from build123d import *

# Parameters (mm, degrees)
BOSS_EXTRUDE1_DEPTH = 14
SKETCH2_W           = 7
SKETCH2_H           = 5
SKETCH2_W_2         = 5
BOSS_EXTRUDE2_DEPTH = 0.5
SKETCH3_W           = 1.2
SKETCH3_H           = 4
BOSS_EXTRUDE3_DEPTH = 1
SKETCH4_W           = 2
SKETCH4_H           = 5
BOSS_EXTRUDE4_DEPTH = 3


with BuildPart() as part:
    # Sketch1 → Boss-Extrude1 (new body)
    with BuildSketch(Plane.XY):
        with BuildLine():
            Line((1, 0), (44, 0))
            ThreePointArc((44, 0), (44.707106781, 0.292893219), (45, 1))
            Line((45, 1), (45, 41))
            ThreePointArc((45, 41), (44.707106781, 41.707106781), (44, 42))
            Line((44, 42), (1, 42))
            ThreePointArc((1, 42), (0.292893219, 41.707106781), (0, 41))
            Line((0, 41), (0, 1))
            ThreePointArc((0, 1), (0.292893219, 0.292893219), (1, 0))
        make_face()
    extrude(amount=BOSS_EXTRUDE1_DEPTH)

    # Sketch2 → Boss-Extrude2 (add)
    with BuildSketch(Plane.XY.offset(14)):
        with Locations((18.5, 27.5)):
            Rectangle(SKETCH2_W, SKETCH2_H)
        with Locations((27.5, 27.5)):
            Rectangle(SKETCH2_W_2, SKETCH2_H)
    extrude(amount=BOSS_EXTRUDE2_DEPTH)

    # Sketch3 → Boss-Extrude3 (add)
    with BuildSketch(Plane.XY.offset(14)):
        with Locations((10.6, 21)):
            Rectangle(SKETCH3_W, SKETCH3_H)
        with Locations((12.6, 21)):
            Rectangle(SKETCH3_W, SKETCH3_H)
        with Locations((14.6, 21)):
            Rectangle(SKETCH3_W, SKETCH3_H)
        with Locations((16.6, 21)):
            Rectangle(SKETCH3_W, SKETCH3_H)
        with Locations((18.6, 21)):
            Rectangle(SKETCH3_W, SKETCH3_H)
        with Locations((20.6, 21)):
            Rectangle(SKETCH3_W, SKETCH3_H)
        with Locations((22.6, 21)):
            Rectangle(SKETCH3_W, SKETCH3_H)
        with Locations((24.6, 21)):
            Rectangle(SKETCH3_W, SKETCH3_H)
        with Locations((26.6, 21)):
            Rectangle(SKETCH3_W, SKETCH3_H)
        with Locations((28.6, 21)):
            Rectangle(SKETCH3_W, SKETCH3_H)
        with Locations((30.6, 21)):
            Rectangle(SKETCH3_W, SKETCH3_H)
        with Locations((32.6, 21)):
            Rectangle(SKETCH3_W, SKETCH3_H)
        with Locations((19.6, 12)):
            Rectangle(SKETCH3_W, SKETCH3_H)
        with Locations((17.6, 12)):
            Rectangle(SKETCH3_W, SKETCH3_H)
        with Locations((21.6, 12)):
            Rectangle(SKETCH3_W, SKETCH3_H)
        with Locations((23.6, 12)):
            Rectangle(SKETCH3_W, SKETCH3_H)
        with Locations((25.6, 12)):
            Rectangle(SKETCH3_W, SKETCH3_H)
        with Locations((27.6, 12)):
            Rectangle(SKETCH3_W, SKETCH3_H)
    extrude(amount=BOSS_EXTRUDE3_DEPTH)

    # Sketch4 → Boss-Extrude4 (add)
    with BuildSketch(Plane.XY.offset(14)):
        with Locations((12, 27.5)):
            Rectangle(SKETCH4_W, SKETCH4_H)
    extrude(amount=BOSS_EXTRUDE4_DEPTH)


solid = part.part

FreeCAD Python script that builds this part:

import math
import FreeCAD as App
import Part
import Sketcher
Q = App.Units.Quantity

doc = App.newDocument("Part")
params = doc.addObject("Spreadsheet::Sheet", "Params")
for row, (alias, value) in enumerate([
    ("sketch1_radius", "1 mm"),
    ("sketch1_width", "43 mm"),
    ("sketch1_height", "40 mm"),
    ("pad1_length", "14 mm"),
    ("sketch2_width", "7 mm"),
    ("sketch2_width2", "5 mm"),
    ("pad2_length", "0.5 mm"),
    ("sketch3_height", "4 mm"),
    ("sketch3_width", "1.2 mm"),
    ("pad3_length", "1 mm"),
    ("sketch4_width", "2 mm"),
    ("sketch4_height", "5 mm"),
    ("pad4_length", "3 mm"),
], start=1):
    params.set(f"A{row}", alias)
    params.set(f"B{row}", "=" + value)
    params.setAlias(f"B{row}", alias)

body = doc.addObject("PartDesign::Body", "Body")

sketch1 = body.newObject("Sketcher::SketchObject", "Sketch")
sketch1.AttachmentSupport = (doc.getObject("XY_Plane"), [""])
sketch1.MapMode = "FlatFace"
sketch1.addGeometry(Part.LineSegment(App.Vector(1, 0, 0), App.Vector(44, 0, 0)), False)
sketch1.addGeometry(Part.ArcOfCircle(Part.Circle(App.Vector(44, 1, 0), App.Vector(0, 0, 1), 1), math.radians(-90), math.radians(0)), False)
sketch1.addGeometry(Part.LineSegment(App.Vector(45, 1, 0), App.Vector(45, 41, 0)), False)
sketch1.addGeometry(Part.ArcOfCircle(Part.Circle(App.Vector(44, 41, 0), App.Vector(0, 0, 1), 1), math.radians(0), math.radians(90)), False)
sketch1.addGeometry(Part.LineSegment(App.Vector(44, 42, 0), App.Vector(1, 42, 0)), False)
sketch1.addGeometry(Part.ArcOfCircle(Part.Circle(App.Vector(1, 41, 0), App.Vector(0, 0, 1), 1), math.radians(90), math.radians(180)), False)
sketch1.addGeometry(Part.LineSegment(App.Vector(0, 41, 0), App.Vector(0, 1, 0)), False)
sketch1.addGeometry(Part.ArcOfCircle(Part.Circle(App.Vector(1, 1, 0), App.Vector(0, 0, 1), 1), math.radians(-180), math.radians(-90)), False)
sketch1.addConstraint(Sketcher.Constraint("Tangent", 0, 2, 1, 1))
sketch1.addConstraint(Sketcher.Constraint("Tangent", 1, 2, 2, 1))
sketch1.addConstraint(Sketcher.Constraint("Tangent", 2, 2, 3, 1))
sketch1.addConstraint(Sketcher.Constraint("Tangent", 3, 2, 4, 1))
sketch1.addConstraint(Sketcher.Constraint("Tangent", 4, 2, 5, 1))
sketch1.addConstraint(Sketcher.Constraint("Tangent", 5, 2, 6, 1))
sketch1.addConstraint(Sketcher.Constraint("Tangent", 6, 2, 7, 1))
sketch1.addConstraint(Sketcher.Constraint("Tangent", 7, 2, 0, 1))
sketch1.addConstraint(Sketcher.Constraint("Horizontal", 0))
sketch1.addConstraint(Sketcher.Constraint("Vertical", 2))
sketch1.addConstraint(Sketcher.Constraint("Horizontal", 4))
sketch1.addConstraint(Sketcher.Constraint("Vertical", 6))
sketch1.addConstraint(Sketcher.Constraint("Equal", 1, 3))
sketch1.addConstraint(Sketcher.Constraint("Equal", 3, 5))
sketch1.addConstraint(Sketcher.Constraint("Equal", 5, 7))
sketch1.addConstraint(Sketcher.Constraint("PointOnObject", 0, 2, -1))
sketch1.addConstraint(Sketcher.Constraint("PointOnObject", 5, 2, -2))
sketch1.addConstraint(Sketcher.Constraint("Radius", 1, Q("1 mm")))
sketch1.addConstraint(Sketcher.Constraint("DistanceX", 0, 1, 0, 2, Q("43 mm")))
sketch1.addConstraint(Sketcher.Constraint("DistanceY", 2, 1, 2, 2, Q("40 mm")))
sketch1.setExpression("Constraints[17]", "Params.sketch1_radius")
sketch1.setExpression("Constraints[18]", "Params.sketch1_width")
sketch1.setExpression("Constraints[19]", "Params.sketch1_height")
pad1 = body.newObject("PartDesign::Pad", "Pad")
pad1.Profile = sketch1
pad1.setExpression("Length", "Params.pad1_length")

sketch2 = body.newObject("Sketcher::SketchObject", "Sketch001")
sketch2.AttachmentSupport = (doc.getObject("XY_Plane"), [""])
sketch2.MapMode = "FlatFace"
sketch2.AttachmentOffset = App.Placement(App.Vector(0, 0, 14), App.Rotation())
sketch2.addGeometry(Part.LineSegment(App.Vector(15, 30, 0), App.Vector(15, 25, 0)), False)
sketch2.addGeometry(Part.LineSegment(App.Vector(15, 25, 0), App.Vector(22, 25, 0)), False)
sketch2.addGeometry(Part.LineSegment(App.Vector(22, 25, 0), App.Vector(22, 30, 0)), False)
sketch2.addGeometry(Part.LineSegment(App.Vector(22, 30, 0), App.Vector(15, 30, 0)), False)
sketch2.addGeometry(Part.LineSegment(App.Vector(25, 30, 0), App.Vector(25, 25, 0)), False)
sketch2.addGeometry(Part.LineSegment(App.Vector(25, 25, 0), App.Vector(30, 25, 0)), False)
sketch2.addGeometry(Part.LineSegment(App.Vector(30, 25, 0), App.Vector(30, 30, 0)), False)
sketch2.addGeometry(Part.LineSegment(App.Vector(30, 30, 0), App.Vector(25, 30, 0)), False)
sketch2.addConstraint(Sketcher.Constraint("Coincident", 0, 2, 1, 1))
sketch2.addConstraint(Sketcher.Constraint("Coincident", 1, 2, 2, 1))
sketch2.addConstraint(Sketcher.Constraint("Coincident", 2, 2, 3, 1))
sketch2.addConstraint(Sketcher.Constraint("Coincident", 3, 2, 0, 1))
sketch2.addConstraint(Sketcher.Constraint("Coincident", 4, 2, 5, 1))
sketch2.addConstraint(Sketcher.Constraint("Coincident", 5, 2, 6, 1))
sketch2.addConstraint(Sketcher.Constraint("Coincident", 6, 2, 7, 1))
sketch2.addConstraint(Sketcher.Constraint("Coincident", 7, 2, 4, 1))
sketch2.addConstraint(Sketcher.Constraint("Vertical", 0))
sketch2.addConstraint(Sketcher.Constraint("Horizontal", 1))
sketch2.addConstraint(Sketcher.Constraint("Vertical", 2))
sketch2.addConstraint(Sketcher.Constraint("Horizontal", 3))
sketch2.addConstraint(Sketcher.Constraint("Vertical", 4))
sketch2.addConstraint(Sketcher.Constraint("Horizontal", 5))
sketch2.addConstraint(Sketcher.Constraint("Vertical", 6))
sketch2.addConstraint(Sketcher.Constraint("Horizontal", 7))
sketch2.addConstraint(Sketcher.Constraint("Horizontal", 1, 2, 4, 2))
sketch2.addConstraint(Sketcher.Constraint("Horizontal", 3, 2, 6, 2))
sketch2.addConstraint(Sketcher.Constraint("Equal", 7, 0))
sketch2.addConstraint(Sketcher.Constraint("DistanceX", 1, 1, 1, 2, Q("7 mm")))
sketch2.addConstraint(Sketcher.Constraint("DistanceX", 5, 1, 5, 2, Q("5 mm")))
sketch2.addConstraint(Sketcher.Constraint("DistanceX", -1, 1, 0, 2, Q("15 mm")))
sketch2.addConstraint(Sketcher.Constraint("DistanceY", -1, 1, 0, 2, Q("25 mm")))
sketch2.addConstraint(Sketcher.Constraint("DistanceX", -1, 1, 4, 2, Q("25 mm")))
sketch2.setExpression("Constraints[19]", "Params.sketch2_width")
sketch2.setExpression("Constraints[20]", "Params.sketch2_width2")
pad2 = body.newObject("PartDesign::Pad", "Pad001")
pad2.Profile = sketch2
pad2.setExpression("Length", "Params.pad2_length")

sketch3 = body.newObject("Sketcher::SketchObject", "Sketch002")
sketch3.AttachmentSupport = (doc.getObject("XY_Plane"), [""])
sketch3.MapMode = "FlatFace"
sketch3.AttachmentOffset = App.Placement(App.Vector(0, 0, 14), App.Rotation())
sketch3.addGeometry(Part.LineSegment(App.Vector(10, 23, 0), App.Vector(10, 19, 0)), False)
sketch3.addGeometry(Part.LineSegment(App.Vector(10, 19, 0), App.Vector(11.2, 19, 0)), False)
sketch3.addGeometry(Part.LineSegment(App.Vector(11.2, 19, 0), App.Vector(11.2, 23, 0)), False)
sketch3.addGeometry(Part.LineSegment(App.Vector(11.2, 23, 0), App.Vector(10, 23, 0)), False)
sketch3.addGeometry(Part.LineSegment(App.Vector(12, 23, 0), App.Vector(12, 19, 0)), False)
sketch3.addGeometry(Part.LineSegment(App.Vector(12, 19, 0), App.Vector(13.2, 19, 0)), False)
sketch3.addGeometry(Part.LineSegment(App.Vector(13.2, 19, 0), App.Vector(13.2, 23, 0)), False)
sketch3.addGeometry(Part.LineSegment(App.Vector(13.2, 23, 0), App.Vector(12, 23, 0)), False)
sketch3.addGeometry(Part.LineSegment(App.Vector(14, 23, 0), App.Vector(14, 19, 0)), False)
sketch3.addGeometry(Part.LineSegment(App.Vector(14, 19, 0), App.Vector(15.2, 19, 0)), False)
sketch3.addGeometry(Part.LineSegment(App.Vector(15.2, 19, 0), App.Vector(15.2, 23, 0)), False)
sketch3.addGeometry(Part.LineSegment(App.Vector(15.2, 23, 0), App.Vector(14, 23, 0)), False)
sketch3.addGeometry(Part.LineSegment(App.Vector(16, 23, 0), App.Vector(16, 19, 0)), False)
sketch3.addGeometry(Part.LineSegment(App.Vector(16, 19, 0), App.Vector(17.2, 19, 0)), False)
sketch3.addGeometry(Part.LineSegment(App.Vector(17.2, 19, 0), App.Vector(17.2, 23, 0)), False)
sketch3.addGeometry(Part.LineSegment(App.Vector(17.2, 23, 0), App.Vector(16, 23, 0)), False)
sketch3.addGeometry(Part.LineSegment(App.Vector(18, 23, 0), App.Vector(18, 19, 0)), False)
sketch3.addGeometry(Part.LineSegment(App.Vector(18, 19, 0), App.Vector(19.2, 19, 0)), False)
sketch3.addGeometry(Part.LineSegment(App.Vector(19.2, 19, 0), App.Vector(19.2, 23, 0)), False)
sketch3.addGeometry(Part.LineSegment(App.Vector(19.2, 23, 0), App.Vector(18, 23, 0)), False)
sketch3.addGeometry(Part.LineSegment(App.Vector(20, 23, 0), App.Vector(20, 19, 0)), False)
sketch3.addGeometry(Part.LineSegment(App.Vector(20, 19, 0), App.Vector(21.2, 19, 0)), False)
sketch3.addGeometry(Part.LineSegment(App.Vector(21.2, 19, 0), App.Vector(21.2, 23, 0)), False)
sketch3.addGeometry(Part.LineSegment(App.Vector(21.2, 23, 0), App.Vector(20, 23, 0)), False)
sketch3.addGeometry(Part.LineSegment(App.Vector(22, 23, 0), App.Vector(22, 19, 0)), False)
sketch3.addGeometry(Part.LineSegment(App.Vector(22, 19, 0), App.Vector(23.2, 19, 0)), False)
sketch3.addGeometry(Part.LineSegment(App.Vector(23.2, 19, 0), App.Vector(23.2, 23, 0)), False)
sketch3.addGeometry(Part.LineSegment(App.Vector(23.2, 23, 0), App.Vector(22, 23, 0)), False)
sketch3.addGeometry(Part.LineSegment(App.Vector(24, 23, 0), App.Vector(24, 19, 0)), False)
sketch3.addGeometry(Part.LineSegment(App.Vector(24, 19, 0), App.Vector(25.2, 19, 0)), False)
sketch3.addGeometry(Part.LineSegment(App.Vector(25.2, 19, 0), App.Vector(25.2, 23, 0)), False)
sketch3.addGeometry(Part.LineSegment(App.Vector(25.2, 23, 0), App.Vector(24, 23, 0)), False)
sketch3.addGeometry(Part.LineSegment(App.Vector(26, 23, 0), App.Vector(26, 19, 0)), False)
sketch3.addGeometry(Part.LineSegment(App.Vector(26, 19, 0), App.Vector(27.2, 19, 0)), False)
sketch3.addGeometry(Part.LineSegment(App.Vector(27.2, 19, 0), App.Vector(27.2, 23, 0)), False)
sketch3.addGeometry(Part.LineSegment(App.Vector(27.2, 23, 0), App.Vector(26, 23, 0)), False)
sketch3.addGeometry(Part.LineSegment(App.Vector(28, 23, 0), App.Vector(28, 19, 0)), False)
sketch3.addGeometry(Part.LineSegment(App.Vector(28, 19, 0), App.Vector(29.2, 19, 0)), False)
sketch3.addGeometry(Part.LineSegment(App.Vector(29.2, 19, 0), App.Vector(29.2, 23, 0)), False)
sketch3.addGeometry(Part.LineSegment(App.Vector(29.2, 23, 0), App.Vector(28, 23, 0)), False)
sketch3.addGeometry(Part.LineSegment(App.Vector(30, 23, 0), App.Vector(30, 19, 0)), False)
sketch3.addGeometry(Part.LineSegment(App.Vector(30, 19, 0), App.Vector(31.2, 19, 0)), False)
sketch3.addGeometry(Part.LineSegment(App.Vector(31.2, 19, 0), App.Vector(31.2, 23, 0)), False)
sketch3.addGeometry(Part.LineSegment(App.Vector(31.2, 23, 0), App.Vector(30, 23, 0)), False)
sketch3.addGeometry(Part.LineSegment(App.Vector(32, 23, 0), App.Vector(32, 19, 0)), False)
sketch3.addGeometry(Part.LineSegment(App.Vector(32, 19, 0), App.Vector(33.2, 19, 0)), False)
sketch3.addGeometry(Part.LineSegment(App.Vector(33.2, 19, 0), App.Vector(33.2, 23, 0)), False)
sketch3.addGeometry(Part.LineSegment(App.Vector(33.2, 23, 0), App.Vector(32, 23, 0)), False)
sketch3.addGeometry(Part.LineSegment(App.Vector(19, 14, 0), App.Vector(19, 10, 0)), False)
sketch3.addGeometry(Part.LineSegment(App.Vector(19, 10, 0), App.Vector(20.2, 10, 0)), False)
sketch3.addGeometry(Part.LineSegment(App.Vector(20.2, 10, 0), App.Vector(20.2, 14, 0)), False)
sketch3.addGeometry(Part.LineSegment(App.Vector(20.2, 14, 0), App.Vector(19, 14, 0)), False)
sketch3.addGeometry(Part.LineSegment(App.Vector(17, 14, 0), App.Vector(17, 10, 0)), False)
sketch3.addGeometry(Part.LineSegment(App.Vector(17, 10, 0), App.Vector(18.2, 10, 0)), False)
sketch3.addGeometry(Part.LineSegment(App.Vector(18.2, 10, 0), App.Vector(18.2, 14, 0)), False)
sketch3.addGeometry(Part.LineSegment(App.Vector(18.2, 14, 0), App.Vector(17, 14, 0)), False)
sketch3.addGeometry(Part.LineSegment(App.Vector(21, 14, 0), App.Vector(21, 10, 0)), False)
sketch3.addGeometry(Part.LineSegment(App.Vector(21, 10, 0), App.Vector(22.2, 10, 0)), False)
sketch3.addGeometry(Part.LineSegment(App.Vector(22.2, 10, 0), App.Vector(22.2, 14, 0)), False)
sketch3.addGeometry(Part.LineSegment(App.Vector(22.2, 14, 0), App.Vector(21, 14, 0)), False)
sketch3.addGeometry(Part.LineSegment(App.Vector(23, 14, 0), App.Vector(23, 10, 0)), False)
sketch3.addGeometry(Part.LineSegment(App.Vector(23, 10, 0), App.Vector(24.2, 10, 0)), False)
sketch3.addGeometry(Part.LineSegment(App.Vector(24.2, 10, 0), App.Vector(24.2, 14, 0)), False)
sketch3.addGeometry(Part.LineSegment(App.Vector(24.2, 14, 0), App.Vector(23, 14, 0)), False)
sketch3.addGeometry(Part.LineSegment(App.Vector(25, 14, 0), App.Vector(25, 10, 0)), False)
sketch3.addGeometry(Part.LineSegment(App.Vector(25, 10, 0), App.Vector(26.2, 10, 0)), False)
sketch3.addGeometry(Part.LineSegment(App.Vector(26.2, 10, 0), App.Vector(26.2, 14, 0)), False)
sketch3.addGeometry(Part.LineSegment(App.Vector(26.2, 14, 0), App.Vector(25, 14, 0)), False)
sketch3.addGeometry(Part.LineSegment(App.Vector(27, 14, 0), App.Vector(27, 10, 0)), False)
sketch3.addGeometry(Part.LineSegment(App.Vector(27, 10, 0), App.Vector(28.2, 10, 0)), False)
sketch3.addGeometry(Part.LineSegment(App.Vector(28.2, 10, 0), App.Vector(28.2, 14, 0)), False)
sketch3.addGeometry(Part.LineSegment(App.Vector(28.2, 14, 0), App.Vector(27, 14, 0)), False)
sketch3.addConstraint(Sketcher.Constraint("Coincident", 0, 2, 1, 1))
sketch3.addConstraint(Sketcher.Constraint("Coincident", 1, 2, 2, 1))
sketch3.addConstraint(Sketcher.Constraint("Coincident", 2, 2, 3, 1))
sketch3.addConstraint(Sketcher.Constraint("Coincident", 3, 2, 0, 1))
sketch3.addConstraint(Sketcher.Constraint("Coincident", 4, 2, 5, 1))
sketch3.addConstraint(Sketcher.Constraint("Coincident", 5, 2, 6, 1))
sketch3.addConstraint(Sketcher.Constraint("Coincident", 6, 2, 7, 1))
sketch3.addConstraint(Sketcher.Constraint("Coincident", 7, 2, 4, 1))
sketch3.addConstraint(Sketcher.Constraint("Coincident", 8, 2, 9, 1))
sketch3.addConstraint(Sketcher.Constraint("Coincident", 9, 2, 10, 1))
sketch3.addConstraint(Sketcher.Constraint("Coincident", 10, 2, 11, 1))
sketch3.addConstraint(Sketcher.Constraint("Coincident", 11, 2, 8, 1))
sketch3.addConstraint(Sketcher.Constraint("Coincident", 12, 2, 13, 1))
sketch3.addConstraint(Sketcher.Constraint("Coincident", 13, 2, 14, 1))
sketch3.addConstraint(Sketcher.Constraint("Coincident", 14, 2, 15, 1))
sketch3.addConstraint(Sketcher.Constraint("Coincident", 15, 2, 12, 1))
sketch3.addConstraint(Sketcher.Constraint("Coincident", 16, 2, 17, 1))
sketch3.addConstraint(Sketcher.Constraint("Coincident", 17, 2, 18, 1))
sketch3.addConstraint(Sketcher.Constraint("Coincident", 18, 2, 19, 1))
sketch3.addConstraint(Sketcher.Constraint("Coincident", 19, 2, 16, 1))
sketch3.addConstraint(Sketcher.Constraint("Coincident", 20, 2, 21, 1))
sketch3.addConstraint(Sketcher.Constraint("Coincident", 21, 2, 22, 1))
sketch3.addConstraint(Sketcher.Constraint("Coincident", 22, 2, 23, 1))
sketch3.addConstraint(Sketcher.Constraint("Coincident", 23, 2, 20, 1))
sketch3.addConstraint(Sketcher.Constraint("Coincident", 24, 2, 25, 1))
sketch3.addConstraint(Sketcher.Constraint("Coincident", 25, 2, 26, 1))
sketch3.addConstraint(Sketcher.Constraint("Coincident", 26, 2, 27, 1))
sketch3.addConstraint(Sketcher.Constraint("Coincident", 27, 2, 24, 1))
sketch3.addConstraint(Sketcher.Constraint("Coincident", 28, 2, 29, 1))
sketch3.addConstraint(Sketcher.Constraint("Coincident", 29, 2, 30, 1))
sketch3.addConstraint(Sketcher.Constraint("Coincident", 30, 2, 31, 1))
sketch3.addConstraint(Sketcher.Constraint("Coincident", 31, 2, 28, 1))
sketch3.addConstraint(Sketcher.Constraint("Coincident", 32, 2, 33, 1))
sketch3.addConstraint(Sketcher.Constraint("Coincident", 33, 2, 34, 1))
sketch3.addConstraint(Sketcher.Constraint("Coincident", 34, 2, 35, 1))
sketch3.addConstraint(Sketcher.Constraint("Coincident", 35, 2, 32, 1))
sketch3.addConstraint(Sketcher.Constraint("Coincident", 36, 2, 37, 1))
sketch3.addConstraint(Sketcher.Constraint("Coincident", 37, 2, 38, 1))
sketch3.addConstraint(Sketcher.Constraint("Coincident", 38, 2, 39, 1))
sketch3.addConstraint(Sketcher.Constraint("Coincident", 39, 2, 36, 1))
sketch3.addConstraint(Sketcher.Constraint("Coincident", 40, 2, 41, 1))
sketch3.addConstraint(Sketcher.Constraint("Coincident", 41, 2, 42, 1))
sketch3.addConstraint(Sketcher.Constraint("Coincident", 42, 2, 43, 1))
sketch3.addConstraint(Sketcher.Constraint("Coincident", 43, 2, 40, 1))
sketch3.addConstraint(Sketcher.Constraint("Coincident", 44, 2, 45, 1))
sketch3.addConstraint(Sketcher.Constraint("Coincident", 45, 2, 46, 1))
sketch3.addConstraint(Sketcher.Constraint("Coincident", 46, 2, 47, 1))
sketch3.addConstraint(Sketcher.Constraint("Coincident", 47, 2, 44, 1))
sketch3.addConstraint(Sketcher.Constraint("Coincident", 48, 2, 49, 1))
sketch3.addConstraint(Sketcher.Constraint("Coincident", 49, 2, 50, 1))
sketch3.addConstraint(Sketcher.Constraint("Coincident", 50, 2, 51, 1))
sketch3.addConstraint(Sketcher.Constraint("Coincident", 51, 2, 48, 1))
sketch3.addConstraint(Sketcher.Constraint("Coincident", 52, 2, 53, 1))
sketch3.addConstraint(Sketcher.Constraint("Coincident", 53, 2, 54, 1))
sketch3.addConstraint(Sketcher.Constraint("Coincident", 54, 2, 55, 1))
sketch3.addConstraint(Sketcher.Constraint("Coincident", 55, 2, 52, 1))
sketch3.addConstraint(Sketcher.Constraint("Coincident", 56, 2, 57, 1))
sketch3.addConstraint(Sketcher.Constraint("Coincident", 57, 2, 58, 1))
sketch3.addConstraint(Sketcher.Constraint("Coincident", 58, 2, 59, 1))
sketch3.addConstraint(Sketcher.Constraint("Coincident", 59, 2, 56, 1))
sketch3.addConstraint(Sketcher.Constraint("Coincident", 60, 2, 61, 1))
sketch3.addConstraint(Sketcher.Constraint("Coincident", 61, 2, 62, 1))
sketch3.addConstraint(Sketcher.Constraint("Coincident", 62, 2, 63, 1))
sketch3.addConstraint(Sketcher.Constraint("Coincident", 63, 2, 60, 1))
sketch3.addConstraint(Sketcher.Constraint("Coincident", 64, 2, 65, 1))
sketch3.addConstraint(Sketcher.Constraint("Coincident", 65, 2, 66, 1))
sketch3.addConstraint(Sketcher.Constraint("Coincident", 66, 2, 67, 1))
sketch3.addConstraint(Sketcher.Constraint("Coincident", 67, 2, 64, 1))
sketch3.addConstraint(Sketcher.Constraint("Coincident", 68, 2, 69, 1))
sketch3.addConstraint(Sketcher.Constraint("Coincident", 69, 2, 70, 1))
sketch3.addConstraint(Sketcher.Constraint("Coincident", 70, 2, 71, 1))
sketch3.addConstraint(Sketcher.Constraint("Coincident", 71, 2, 68, 1))
sketch3.addConstraint(Sketcher.Constraint("Vertical", 0))
sketch3.addConstraint(Sketcher.Constraint("Horizontal", 1))
sketch3.addConstraint(Sketcher.Constraint("Vertical", 2))
sketch3.addConstraint(Sketcher.Constraint("Horizontal", 3))
sketch3.addConstraint(Sketcher.Constraint("Vertical", 4))
sketch3.addConstraint(Sketcher.Constraint("Horizontal", 5))
sketch3.addConstraint(Sketcher.Constraint("Vertical", 6))
sketch3.addConstraint(Sketcher.Constraint("Horizontal", 7))
sketch3.addConstraint(Sketcher.Constraint("Vertical", 8))
sketch3.addConstraint(Sketcher.Constraint("Horizontal", 9))
sketch3.addConstraint(Sketcher.Constraint("Vertical", 10))
sketch3.addConstraint(Sketcher.Constraint("Horizontal", 11))
sketch3.addConstraint(Sketcher.Constraint("Vertical", 12))
sketch3.addConstraint(Sketcher.Constraint("Horizontal", 13))
sketch3.addConstraint(Sketcher.Constraint("Vertical", 14))
sketch3.addConstraint(Sketcher.Constraint("Horizontal", 15))
sketch3.addConstraint(Sketcher.Constraint("Vertical", 16))
sketch3.addConstraint(Sketcher.Constraint("Horizontal", 17))
sketch3.addConstraint(Sketcher.Constraint("Vertical", 18))
sketch3.addConstraint(Sketcher.Constraint("Horizontal", 19))
sketch3.addConstraint(Sketcher.Constraint("Vertical", 20))
sketch3.addConstraint(Sketcher.Constraint("Horizontal", 21))
sketch3.addConstraint(Sketcher.Constraint("Vertical", 22))
sketch3.addConstraint(Sketcher.Constraint("Horizontal", 23))
sketch3.addConstraint(Sketcher.Constraint("Vertical", 24))
sketch3.addConstraint(Sketcher.Constraint("Horizontal", 25))
sketch3.addConstraint(Sketcher.Constraint("Vertical", 26))
sketch3.addConstraint(Sketcher.Constraint("Horizontal", 27))
sketch3.addConstraint(Sketcher.Constraint("Vertical", 28))
sketch3.addConstraint(Sketcher.Constraint("Horizontal", 29))
sketch3.addConstraint(Sketcher.Constraint("Vertical", 30))
sketch3.addConstraint(Sketcher.Constraint("Horizontal", 31))
sketch3.addConstraint(Sketcher.Constraint("Vertical", 32))
sketch3.addConstraint(Sketcher.Constraint("Horizontal", 33))
sketch3.addConstraint(Sketcher.Constraint("Vertical", 34))
sketch3.addConstraint(Sketcher.Constraint("Horizontal", 35))
sketch3.addConstraint(Sketcher.Constraint("Vertical", 36))
sketch3.addConstraint(Sketcher.Constraint("Horizontal", 37))
sketch3.addConstraint(Sketcher.Constraint("Vertical", 38))
sketch3.addConstraint(Sketcher.Constraint("Horizontal", 39))
sketch3.addConstraint(Sketcher.Constraint("Vertical", 40))
sketch3.addConstraint(Sketcher.Constraint("Horizontal", 41))
sketch3.addConstraint(Sketcher.Constraint("Vertical", 42))
sketch3.addConstraint(Sketcher.Constraint("Horizontal", 43))
sketch3.addConstraint(Sketcher.Constraint("Vertical", 44))
sketch3.addConstraint(Sketcher.Constraint("Horizontal", 45))
sketch3.addConstraint(Sketcher.Constraint("Vertical", 46))
sketch3.addConstraint(Sketcher.Constraint("Horizontal", 47))
sketch3.addConstraint(Sketcher.Constraint("Vertical", 48))
sketch3.addConstraint(Sketcher.Constraint("Horizontal", 49))
sketch3.addConstraint(Sketcher.Constraint("Vertical", 50))
sketch3.addConstraint(Sketcher.Constraint("Horizontal", 51))
sketch3.addConstraint(Sketcher.Constraint("Vertical", 52))
sketch3.addConstraint(Sketcher.Constraint("Horizontal", 53))
sketch3.addConstraint(Sketcher.Constraint("Vertical", 54))
sketch3.addConstraint(Sketcher.Constraint("Horizontal", 55))
sketch3.addConstraint(Sketcher.Constraint("Vertical", 56))
sketch3.addConstraint(Sketcher.Constraint("Horizontal", 57))
sketch3.addConstraint(Sketcher.Constraint("Vertical", 58))
sketch3.addConstraint(Sketcher.Constraint("Horizontal", 59))
sketch3.addConstraint(Sketcher.Constraint("Vertical", 60))
sketch3.addConstraint(Sketcher.Constraint("Horizontal", 61))
sketch3.addConstraint(Sketcher.Constraint("Vertical", 62))
sketch3.addConstraint(Sketcher.Constraint("Horizontal", 63))
sketch3.addConstraint(Sketcher.Constraint("Vertical", 64))
sketch3.addConstraint(Sketcher.Constraint("Horizontal", 65))
sketch3.addConstraint(Sketcher.Constraint("Vertical", 66))
sketch3.addConstraint(Sketcher.Constraint("Horizontal", 67))
sketch3.addConstraint(Sketcher.Constraint("Vertical", 68))
sketch3.addConstraint(Sketcher.Constraint("Horizontal", 69))
sketch3.addConstraint(Sketcher.Constraint("Vertical", 70))
sketch3.addConstraint(Sketcher.Constraint("Horizontal", 71))
sketch3.addConstraint(Sketcher.Constraint("Horizontal", 1, 2, 4, 2))
sketch3.addConstraint(Sketcher.Constraint("Horizontal", 3, 2, 6, 2))
sketch3.addConstraint(Sketcher.Constraint("Horizontal", 5, 2, 8, 2))
sketch3.addConstraint(Sketcher.Constraint("Horizontal", 7, 2, 10, 2))
sketch3.addConstraint(Sketcher.Constraint("Horizontal", 9, 2, 12, 2))
sketch3.addConstraint(Sketcher.Constraint("Horizontal", 11, 2, 14, 2))
sketch3.addConstraint(Sketcher.Constraint("Horizontal", 13, 2, 16, 2))
sketch3.addConstraint(Sketcher.Constraint("Horizontal", 15, 2, 18, 2))
sketch3.addConstraint(Sketcher.Constraint("Horizontal", 17, 2, 20, 2))
sketch3.addConstraint(Sketcher.Constraint("Horizontal", 19, 2, 22, 2))
sketch3.addConstraint(Sketcher.Constraint("Horizontal", 21, 2, 24, 2))
sketch3.addConstraint(Sketcher.Constraint("Horizontal", 23, 2, 26, 2))
sketch3.addConstraint(Sketcher.Constraint("Horizontal", 25, 2, 28, 2))
sketch3.addConstraint(Sketcher.Constraint("Horizontal", 27, 2, 30, 2))
sketch3.addConstraint(Sketcher.Constraint("Horizontal", 29, 2, 32, 2))
sketch3.addConstraint(Sketcher.Constraint("Horizontal", 31, 2, 34, 2))
sketch3.addConstraint(Sketcher.Constraint("Horizontal", 33, 2, 36, 2))
sketch3.addConstraint(Sketcher.Constraint("Horizontal", 35, 2, 38, 2))
sketch3.addConstraint(Sketcher.Constraint("Horizontal", 37, 2, 40, 2))
sketch3.addConstraint(Sketcher.Constraint("Horizontal", 39, 2, 42, 2))
sketch3.addConstraint(Sketcher.Constraint("Horizontal", 41, 2, 44, 2))
sketch3.addConstraint(Sketcher.Constraint("Horizontal", 43, 2, 46, 2))
sketch3.addConstraint(Sketcher.Constraint("Horizontal", 49, 2, 52, 2))
sketch3.addConstraint(Sketcher.Constraint("Horizontal", 51, 2, 54, 2))
sketch3.addConstraint(Sketcher.Constraint("Horizontal", 53, 2, 56, 2))
sketch3.addConstraint(Sketcher.Constraint("Horizontal", 55, 2, 58, 2))
sketch3.addConstraint(Sketcher.Constraint("Horizontal", 57, 2, 60, 2))
sketch3.addConstraint(Sketcher.Constraint("Horizontal", 59, 2, 62, 2))
sketch3.addConstraint(Sketcher.Constraint("Horizontal", 61, 2, 64, 2))
sketch3.addConstraint(Sketcher.Constraint("Horizontal", 63, 2, 66, 2))
sketch3.addConstraint(Sketcher.Constraint("Horizontal", 65, 2, 68, 2))
sketch3.addConstraint(Sketcher.Constraint("Horizontal", 67, 2, 70, 2))
sketch3.addConstraint(Sketcher.Constraint("Equal", 3, 5))
sketch3.addConstraint(Sketcher.Constraint("Equal", 7, 9))
sketch3.addConstraint(Sketcher.Constraint("Equal", 11, 13))
sketch3.addConstraint(Sketcher.Constraint("Equal", 15, 17))
sketch3.addConstraint(Sketcher.Constraint("Equal", 19, 21))
sketch3.addConstraint(Sketcher.Constraint("Equal", 23, 25))
sketch3.addConstraint(Sketcher.Constraint("Equal", 27, 29))
sketch3.addConstraint(Sketcher.Constraint("Equal", 31, 33))
sketch3.addConstraint(Sketcher.Constraint("Equal", 35, 37))
sketch3.addConstraint(Sketcher.Constraint("Equal", 39, 41))
sketch3.addConstraint(Sketcher.Constraint("Equal", 43, 45))
sketch3.addConstraint(Sketcher.Constraint("Equal", 47, 49))
sketch3.addConstraint(Sketcher.Constraint("Equal", 51, 53))
sketch3.addConstraint(Sketcher.Constraint("Equal", 55, 57))
sketch3.addConstraint(Sketcher.Constraint("Equal", 59, 61))
sketch3.addConstraint(Sketcher.Constraint("Equal", 63, 65))
sketch3.addConstraint(Sketcher.Constraint("Equal", 67, 69))
sketch3.addConstraint(Sketcher.Constraint("Equal", 46, 48))
sketch3.addConstraint(Sketcher.Constraint("DistanceY", 0, 2, 0, 1, Q("4 mm")))
sketch3.addConstraint(Sketcher.Constraint("DistanceX", 1, 1, 1, 2, Q("1.2 mm")))
sketch3.addConstraint(Sketcher.Constraint("DistanceX", -1, 1, 0, 2, Q("10 mm")))
sketch3.addConstraint(Sketcher.Constraint("DistanceY", -1, 1, 0, 2, Q("19 mm")))
sketch3.addConstraint(Sketcher.Constraint("DistanceX", -1, 1, 4, 2, Q("12 mm")))
sketch3.addConstraint(Sketcher.Constraint("DistanceX", -1, 1, 8, 2, Q("14 mm")))
sketch3.addConstraint(Sketcher.Constraint("DistanceX", -1, 1, 12, 2, Q("16 mm")))
sketch3.addConstraint(Sketcher.Constraint("DistanceX", -1, 1, 16, 2, Q("18 mm")))
sketch3.addConstraint(Sketcher.Constraint("DistanceX", -1, 1, 20, 2, Q("20 mm")))
sketch3.addConstraint(Sketcher.Constraint("DistanceX", -1, 1, 24, 2, Q("22 mm")))
sketch3.addConstraint(Sketcher.Constraint("DistanceX", -1, 1, 28, 2, Q("24 mm")))
sketch3.addConstraint(Sketcher.Constraint("DistanceX", -1, 1, 32, 2, Q("26 mm")))
sketch3.addConstraint(Sketcher.Constraint("DistanceX", -1, 1, 36, 2, Q("28 mm")))
sketch3.addConstraint(Sketcher.Constraint("DistanceX", -1, 1, 40, 2, Q("30 mm")))
sketch3.addConstraint(Sketcher.Constraint("DistanceX", -1, 1, 44, 2, Q("32 mm")))
sketch3.addConstraint(Sketcher.Constraint("DistanceX", -1, 1, 48, 2, Q("19 mm")))
sketch3.addConstraint(Sketcher.Constraint("DistanceY", -1, 1, 48, 2, Q("10 mm")))
sketch3.addConstraint(Sketcher.Constraint("DistanceX", -1, 1, 52, 2, Q("17 mm")))
sketch3.addConstraint(Sketcher.Constraint("DistanceX", -1, 1, 56, 2, Q("21 mm")))
sketch3.addConstraint(Sketcher.Constraint("DistanceX", -1, 1, 60, 2, Q("23 mm")))
sketch3.addConstraint(Sketcher.Constraint("DistanceX", -1, 1, 64, 2, Q("25 mm")))
sketch3.addConstraint(Sketcher.Constraint("DistanceX", -1, 1, 68, 2, Q("27 mm")))
sketch3.setExpression("Constraints[194]", "Params.sketch3_height")
sketch3.setExpression("Constraints[195]", "Params.sketch3_width")
pad3 = body.newObject("PartDesign::Pad", "Pad002")
pad3.Profile = sketch3
pad3.setExpression("Length", "Params.pad3_length")

sketch4 = body.newObject("Sketcher::SketchObject", "Sketch003")
sketch4.AttachmentSupport = (doc.getObject("XY_Plane"), [""])
sketch4.MapMode = "FlatFace"
sketch4.AttachmentOffset = App.Placement(App.Vector(0, 0, 14), App.Rotation())
sketch4.addGeometry(Part.LineSegment(App.Vector(11, 30, 0), App.Vector(11, 25, 0)), False)
sketch4.addGeometry(Part.LineSegment(App.Vector(11, 25, 0), App.Vector(13, 25, 0)), False)
sketch4.addGeometry(Part.LineSegment(App.Vector(13, 25, 0), App.Vector(13, 30, 0)), False)
sketch4.addGeometry(Part.LineSegment(App.Vector(13, 30, 0), App.Vector(11, 30, 0)), False)
sketch4.addConstraint(Sketcher.Constraint("Coincident", 0, 2, 1, 1))
sketch4.addConstraint(Sketcher.Constraint("Coincident", 1, 2, 2, 1))
sketch4.addConstraint(Sketcher.Constraint("Coincident", 2, 2, 3, 1))
sketch4.addConstraint(Sketcher.Constraint("Coincident", 3, 2, 0, 1))
sketch4.addConstraint(Sketcher.Constraint("Vertical", 0))
sketch4.addConstraint(Sketcher.Constraint("Horizontal", 1))
sketch4.addConstraint(Sketcher.Constraint("Vertical", 2))
sketch4.addConstraint(Sketcher.Constraint("Horizontal", 3))
sketch4.addConstraint(Sketcher.Constraint("DistanceX", 1, 1, 1, 2, Q("2 mm")))
sketch4.addConstraint(Sketcher.Constraint("DistanceY", 0, 2, 0, 1, Q("5 mm")))
sketch4.addConstraint(Sketcher.Constraint("DistanceX", -1, 1, 0, 2, Q("11 mm")))
sketch4.addConstraint(Sketcher.Constraint("DistanceY", -1, 1, 0, 2, Q("25 mm")))
sketch4.setExpression("Constraints[8]", "Params.sketch4_width")
sketch4.setExpression("Constraints[9]", "Params.sketch4_height")
pad4 = body.newObject("PartDesign::Pad", "Pad003")
pad4.Profile = sketch4
pad4.setExpression("Length", "Params.pad4_length")

doc.recompute()
